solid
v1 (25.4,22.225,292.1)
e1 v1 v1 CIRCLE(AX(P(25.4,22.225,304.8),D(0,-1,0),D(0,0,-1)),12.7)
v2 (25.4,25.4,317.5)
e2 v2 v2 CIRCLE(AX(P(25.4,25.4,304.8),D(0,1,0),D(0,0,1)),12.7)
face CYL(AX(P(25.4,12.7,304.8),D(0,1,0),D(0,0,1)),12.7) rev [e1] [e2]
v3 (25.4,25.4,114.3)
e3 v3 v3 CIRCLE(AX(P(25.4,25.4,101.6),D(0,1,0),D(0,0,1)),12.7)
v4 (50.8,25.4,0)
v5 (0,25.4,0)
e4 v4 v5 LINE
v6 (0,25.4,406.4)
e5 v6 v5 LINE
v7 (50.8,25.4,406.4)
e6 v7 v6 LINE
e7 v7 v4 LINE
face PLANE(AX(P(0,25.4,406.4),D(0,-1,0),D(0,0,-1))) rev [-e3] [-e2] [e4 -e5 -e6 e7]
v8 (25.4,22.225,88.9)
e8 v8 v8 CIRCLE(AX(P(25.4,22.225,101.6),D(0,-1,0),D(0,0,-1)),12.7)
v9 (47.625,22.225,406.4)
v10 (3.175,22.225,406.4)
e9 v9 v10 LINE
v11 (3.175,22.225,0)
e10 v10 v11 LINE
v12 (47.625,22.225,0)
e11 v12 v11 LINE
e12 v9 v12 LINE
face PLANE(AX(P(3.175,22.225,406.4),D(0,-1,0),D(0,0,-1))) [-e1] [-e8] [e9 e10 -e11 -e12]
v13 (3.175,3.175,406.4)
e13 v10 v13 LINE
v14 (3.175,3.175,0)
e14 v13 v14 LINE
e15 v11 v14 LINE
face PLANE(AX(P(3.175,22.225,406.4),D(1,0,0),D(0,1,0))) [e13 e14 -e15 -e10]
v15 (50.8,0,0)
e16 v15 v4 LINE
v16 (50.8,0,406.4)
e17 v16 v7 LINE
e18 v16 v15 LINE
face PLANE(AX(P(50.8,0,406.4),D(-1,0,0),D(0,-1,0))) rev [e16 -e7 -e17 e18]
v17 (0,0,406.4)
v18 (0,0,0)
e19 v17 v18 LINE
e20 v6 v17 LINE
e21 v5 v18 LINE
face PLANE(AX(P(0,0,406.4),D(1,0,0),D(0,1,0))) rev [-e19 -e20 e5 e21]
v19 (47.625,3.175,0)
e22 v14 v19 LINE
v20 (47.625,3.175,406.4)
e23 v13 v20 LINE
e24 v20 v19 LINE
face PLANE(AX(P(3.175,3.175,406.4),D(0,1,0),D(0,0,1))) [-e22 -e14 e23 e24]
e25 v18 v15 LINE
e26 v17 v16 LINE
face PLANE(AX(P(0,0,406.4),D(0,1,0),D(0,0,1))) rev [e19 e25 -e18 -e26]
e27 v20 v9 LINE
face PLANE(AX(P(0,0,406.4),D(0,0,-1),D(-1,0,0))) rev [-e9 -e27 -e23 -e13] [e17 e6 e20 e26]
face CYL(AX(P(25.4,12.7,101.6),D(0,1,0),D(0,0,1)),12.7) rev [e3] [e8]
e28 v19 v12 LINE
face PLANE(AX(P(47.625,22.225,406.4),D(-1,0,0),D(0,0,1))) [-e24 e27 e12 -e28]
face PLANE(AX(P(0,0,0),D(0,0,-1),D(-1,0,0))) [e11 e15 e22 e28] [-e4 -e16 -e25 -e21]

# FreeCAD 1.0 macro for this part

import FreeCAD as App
import Part
import Sketcher
from FreeCAD import Vector
Q = App.Units.Quantity

doc = App.newDocument("Part")
body = doc.addObject("PartDesign::Body", "Body")

sketch1 = doc.addObject("Sketcher::SketchObject", "Sketch")
body.addObject(sketch1)
sketch1.AttachmentSupport = (doc.XY_Plane, [""])
sketch1.MapMode = "FlatFace"
sketch1.addGeometry(Part.LineSegment(Vector(0, 25.4, 0), Vector(0, 0, 0)), False)
sketch1.addGeometry(Part.LineSegment(Vector(0, 0, 0), Vector(50.8, 0, 0)), False)
sketch1.addGeometry(Part.LineSegment(Vector(50.8, 0, 0), Vector(50.8, 25.4, 0)), False)
sketch1.addGeometry(Part.LineSegment(Vector(50.8, 25.4, 0), Vector(0, 25.4, 0)), False)
sketch1.addGeometry(Part.LineSegment(Vector(47.625, 3.175, 0), Vector(3.175, 3.175, 0)), False)
sketch1.addGeometry(Part.LineSegment(Vector(3.175, 3.175, 0), Vector(3.175, 22.225, 0)), False)
sketch1.addGeometry(Part.LineSegment(Vector(3.175, 22.225, 0), Vector(47.625, 22.225, 0)), False)
sketch1.addGeometry(Part.LineSegment(Vector(47.625, 22.225, 0), Vector(47.625, 3.175, 0)), False)
sketch1.addConstraint(Sketcher.Constraint("Coincident", 0, 2, 1, 1))
sketch1.addConstraint(Sketcher.Constraint("Coincident", 1, 2, 2, 1))
sketch1.addConstraint(Sketcher.Constraint("Coincident", 2, 2, 3, 1))
sketch1.addConstraint(Sketcher.Constraint("Coincident", 3, 2, 0, 1))
sketch1.addConstraint(Sketcher.Constraint("Coincident", 4, 2, 5, 1))
sketch1.addConstraint(Sketcher.Constraint("Coincident", 5, 2, 6, 1))
sketch1.addConstraint(Sketcher.Constraint("Coincident", 6, 2, 7, 1))
sketch1.addConstraint(Sketcher.Constraint("Coincident", 7, 2, 4, 1))
sketch1.addConstraint(Sketcher.Constraint("Vertical", 0))
sketch1.addConstraint(Sketcher.Constraint("Horizontal", 1))
sketch1.addConstraint(Sketcher.Constraint("Vertical", 2))
sketch1.addConstraint(Sketcher.Constraint("Horizontal", 3))
sketch1.addConstraint(Sketcher.Constraint("Horizontal", 4))
sketch1.addConstraint(Sketcher.Constraint("Vertical", 5))
sketch1.addConstraint(Sketcher.Constraint("Horizontal", 6))
sketch1.addConstraint(Sketcher.Constraint("Vertical", 7))
sketch1.addConstraint(Sketcher.Constraint("Coincident", 0, 2, -1, 1))
sketch1.addConstraint(Sketcher.Constraint("DistanceX", 1, 1, 1, 2, Q("2 in")))
sketch1.addConstraint(Sketcher.Constraint("DistanceY", 0, 2, 0, 1, Q("1 in")))
sketch1.addConstraint(Sketcher.Constraint("DistanceX", 4, 2, 4, 1, Q("1.75 in")))
sketch1.addConstraint(Sketcher.Constraint("DistanceY", 5, 1, 5, 2, Q("0.75 in")))
sketch1.addConstraint(Sketcher.Constraint("DistanceX", -1, 1, 4, 2, Q("0.125 in")))
sketch1.addConstraint(Sketcher.Constraint("DistanceY", -1, 1, 4, 2, Q("0.125 in")))
pad1 = doc.addObject("PartDesign::Pad", "Pad")
body.addObject(pad1)
pad1.Profile = sketch1
pad1.Length = Q("16 in")

sketch2 = doc.addObject("Sketcher::SketchObject", "Sketch001")
body.addObject(sketch2)
sketch2.AttachmentSupport = (doc.XZ_Plane, [""])
sketch2.MapMode = "FlatFace"
sketch2.AttachmentOffset = App.Placement(Vector(0, 0, -1 * 25.4), App.Rotation())
sketch2.addGeometry(Part.Circle(Vector(25.4, 101.6, 0), Vector(0, 0, 1), 12.7), False)
sketch2.addGeometry(Part.Circle(Vector(25.4, 304.8, 0), Vector(0, 0, 1), 12.7), False)
sketch2.addConstraint(Sketcher.Constraint("Equal", 0, 1))
sketch2.addConstraint(Sketcher.Constraint("Vertical", 0, 3, 1, 3))
sketch2.addConstraint(Sketcher.Constraint("Diameter", 0, Q("1 in")))
sketch2.addConstraint(Sketcher.Constraint("DistanceX", -1, 1, 0, 3, Q("1 in")))
sketch2.addConstraint(Sketcher.Constraint("DistanceY", -1, 1, 0, 3, Q("4 in")))
sketch2.addConstraint(Sketcher.Constraint("DistanceY", -1, 1, 1, 3, Q("12 in")))
pocket1 = doc.addObject("PartDesign::Pocket", "Pocket")
body.addObject(pocket1)
pocket1.Profile = sketch2
pocket1.Length = Q("0.5 in")
pocket1.Reversed = True

doc.recompute()
